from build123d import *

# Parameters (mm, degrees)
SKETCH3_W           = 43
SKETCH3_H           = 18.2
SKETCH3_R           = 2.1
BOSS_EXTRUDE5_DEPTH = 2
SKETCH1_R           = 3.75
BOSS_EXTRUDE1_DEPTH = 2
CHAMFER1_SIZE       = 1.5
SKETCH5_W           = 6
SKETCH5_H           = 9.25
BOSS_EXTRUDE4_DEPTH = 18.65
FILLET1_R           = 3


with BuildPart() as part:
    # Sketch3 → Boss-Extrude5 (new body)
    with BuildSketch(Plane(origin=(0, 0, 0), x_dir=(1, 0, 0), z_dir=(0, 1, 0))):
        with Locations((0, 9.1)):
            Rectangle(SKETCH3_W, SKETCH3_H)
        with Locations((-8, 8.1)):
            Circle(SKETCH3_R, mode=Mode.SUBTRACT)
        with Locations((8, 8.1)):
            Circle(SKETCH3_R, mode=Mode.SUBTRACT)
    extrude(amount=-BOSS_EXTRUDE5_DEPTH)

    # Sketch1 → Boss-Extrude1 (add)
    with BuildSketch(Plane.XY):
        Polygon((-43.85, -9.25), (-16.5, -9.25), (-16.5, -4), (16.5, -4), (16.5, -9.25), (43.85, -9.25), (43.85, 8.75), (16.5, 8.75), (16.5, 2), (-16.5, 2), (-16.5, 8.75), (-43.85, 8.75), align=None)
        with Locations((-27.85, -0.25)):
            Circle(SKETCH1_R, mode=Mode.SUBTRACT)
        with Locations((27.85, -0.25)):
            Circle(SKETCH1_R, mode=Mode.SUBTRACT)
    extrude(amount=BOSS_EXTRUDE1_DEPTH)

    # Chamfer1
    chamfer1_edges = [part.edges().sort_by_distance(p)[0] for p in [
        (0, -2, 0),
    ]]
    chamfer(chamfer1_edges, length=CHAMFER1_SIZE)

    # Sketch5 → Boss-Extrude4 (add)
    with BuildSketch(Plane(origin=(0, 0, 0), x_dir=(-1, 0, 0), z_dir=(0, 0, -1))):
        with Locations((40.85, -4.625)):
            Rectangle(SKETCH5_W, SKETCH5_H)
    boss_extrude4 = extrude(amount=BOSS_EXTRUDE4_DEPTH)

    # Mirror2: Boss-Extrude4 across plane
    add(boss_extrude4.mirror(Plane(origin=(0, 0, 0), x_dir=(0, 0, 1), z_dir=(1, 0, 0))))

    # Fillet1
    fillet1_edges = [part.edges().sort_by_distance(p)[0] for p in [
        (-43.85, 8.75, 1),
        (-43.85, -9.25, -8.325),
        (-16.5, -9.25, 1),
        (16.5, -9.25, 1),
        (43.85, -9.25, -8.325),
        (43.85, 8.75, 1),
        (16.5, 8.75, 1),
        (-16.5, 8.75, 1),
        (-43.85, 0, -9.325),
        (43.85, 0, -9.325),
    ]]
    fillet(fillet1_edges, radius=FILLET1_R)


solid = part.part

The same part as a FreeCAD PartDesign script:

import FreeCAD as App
import Part
import Sketcher
Q = App.Units.Quantity


def edges_at(feature, points):
    """Names of the edges that pass closest to the given points."""
    edges = feature.Shape.Edges
    near = lambda p: min(range(len(edges)), key=lambda i: edges[i].distToShape(Part.Vertex(*p))[0])
    return sorted({f"Edge{near(p) + 1}" for p in points})


def add_polygon(sketch, points):
    """Adds a closed chain of lines whose ends are joined by coincident constraints."""
    first, n = sketch.GeometryCount, len(points)
    for a, b in zip(points, points[1:] + points[:1]):
        sketch.addGeometry(Part.LineSegment(App.Vector(*a, 0), App.Vector(*b, 0)), False)
    for i in range(n):
        sketch.addConstraint(Sketcher.Constraint("Coincident", first + i, 2, first + (i + 1) % n, 1))

doc = App.newDocument("Part")
body = doc.addObject("PartDesign::Body", "Body")

sketch1 = body.newObject("Sketcher::SketchObject", "Sketch")
sketch1.AttachmentSupport = (doc.getObject("XZ_Plane"), [""])
sketch1.MapMode = "FlatFace"
add_polygon(sketch1, [(-21.5, -18.2), (-21.5, 0), (21.5, 0), (21.5, -18.2)])
sketch1.addGeometry(Part.Circle(App.Vector(-8, -8.1, 0), App.Vector(0, 0, 1), 2.1), False)
sketch1.addGeometry(Part.Circle(App.Vector(8, -8.1, 0), App.Vector(0, 0, 1), 2.1), False)
sketch1.addConstraint([
    Sketcher.Constraint("Vertical", 0),
    Sketcher.Constraint("Horizontal", 1),
    Sketcher.Constraint("Vertical", 2),
    Sketcher.Constraint("Horizontal", 3),
    Sketcher.Constraint("Equal", 4, 5),
    Sketcher.Constraint("Symmetric", 0, 2, 1, 2, -1, 1),
    Sketcher.Constraint("Symmetric", 4, 3, 5, 3, -2),
    Sketcher.Constraint("Diameter", 4, Q("4.2 mm")),
    Sketcher.Constraint("DistanceX", 1, 1, 1, 2, Q("43 mm")),
    Sketcher.Constraint("DistanceY", 0, 1, 0, 2, Q("18.2 mm")),
    Sketcher.Constraint("DistanceX", 4, 3, -1, 1, Q("8 mm")),
    Sketcher.Constraint("DistanceY", 4, 3, -1, 1, Q("8.1 mm")),
])
pad1 = body.newObject("PartDesign::Pad", "Pad")
pad1.Profile = sketch1
pad1.Length = 2

sketch2 = body.newObject("Sketcher::SketchObject", "Sketch001")
sketch2.AttachmentSupport = (doc.getObject("XY_Plane"), [""])
sketch2.MapMode = "FlatFace"
add_polygon(sketch2, [(-43.9, -9.2), (-16.5, -9.2), (-16.5, -4), (16.5, -4), (16.5, -9.2), (43.9, -9.2), (43.9, 8.8), (16.5, 8.8), (16.5, 2), (-16.5, 2), (-16.5, 8.8), (-43.9, 8.8)])
sketch2.addGeometry(Part.Circle(App.Vector(-27.9, -0.2, 0), App.Vector(0, 0, 1), 3.8), False)
sketch2.addGeometry(Part.Circle(App.Vector(27.9, -0.2, 0), App.Vector(0, 0, 1), 3.8), False)
sketch2.addConstraint([
    Sketcher.Constraint("Horizontal", 0),
    Sketcher.Constraint("Vertical", 1),
    Sketcher.Constraint("Horizontal", 2),
    Sketcher.Constraint("Vertical", 3),
    Sketcher.Constraint("Horizontal", 4),
    Sketcher.Constraint("Vertical", 5),
    Sketcher.Constraint("Horizontal", 6),
    Sketcher.Constraint("Vertical", 7),
    Sketcher.Constraint("Horizontal", 8),
    Sketcher.Constraint("Vertical", 9),
    Sketcher.Constraint("Horizontal", 10),
    Sketcher.Constraint("Vertical", 11),
    Sketcher.Constraint("Equal", 12, 13),
    Sketcher.Constraint("Symmetric", 12, 3, 13, 3, -2),
    Sketcher.Constraint("Symmetric", 0, 2, 3, 2, -2),
    Sketcher.Constraint("Symmetric", 6, 2, 9, 2, -2),
    Sketcher.Constraint("Vertical", 3, 2, 6, 2),
    Sketcher.Constraint("Equal", 0, 4),
    Sketcher.Constraint("Diameter", 12, Q("7.5 mm")),
    Sketcher.Constraint("DistanceX", 2, 1, 2, 2, Q("33 mm")),
    Sketcher.Constraint("DistanceY", 5, 1, 5, 2, Q("18 mm")),
    Sketcher.Constraint("DistanceY", 1, 2, -1, 1, Q("4 mm")),
    Sketcher.Constraint("DistanceY", -1, 1, 7, 2, Q("2 mm")),
    Sketcher.Constraint("DistanceY", 0, 2, 12, 3, Q("9 mm")),
    Sketcher.Constraint("DistanceX", 13, 3, 4, 2, Q("16 mm")),
    Sketcher.Constraint("DistanceX", 0, 1, 0, 2, Q("27.35 mm")),
    Sketcher.Constraint("DistanceY", 1, 1, 1, 2, Q("5.25 mm")),
])
pad2 = body.newObject("PartDesign::Pad", "Pad001")
pad2.Profile = sketch2
pad2.Length = 2
doc.recompute()

chamfer = body.newObject("PartDesign::Chamfer", "Chamfer")
chamfer.Base = (pad2, edges_at(pad2, [(0, -2, 0)]))
chamfer.Size = 1.5

sketch3 = body.newObject("Sketcher::SketchObject", "Sketch002")
sketch3.AttachmentSupport = (doc.getObject("XY_Plane"), [""])
sketch3.MapMode = "FlatFace"
add_polygon(sketch3, [(-38, 0), (-38, -9), (-44, -9), (-44, 0)])
sketch3.addConstraint([
    Sketcher.Constraint("Vertical", 0),
    Sketcher.Constraint("Horizontal", 1),
    Sketcher.Constraint("Vertical", 2),
    Sketcher.Constraint("Horizontal", 3),
    Sketcher.Constraint("PointOnObject", 2, 2, -1),
    Sketcher.Constraint("DistanceX", 1, 2, 1, 1, Q("6 mm")),
    Sketcher.Constraint("DistanceY", 0, 2, 0, 1, Q("9.25 mm")),
    Sketcher.Constraint("DistanceX", 0, 2, -1, 1, Q("37.85 mm")),
])
pad3 = body.newObject("PartDesign::Pad", "Pad002")
pad3.Profile = sketch3
pad3.Length = 18.65
pad3.Reversed = True
doc.recompute()

mirrored = body.newObject("PartDesign::Mirrored", "Mirrored")
mirrored.Originals = [pad3]
mirrored.MirrorPlane = (doc.getObject("YZ_Plane"), [""])
body.Tip = mirrored
doc.recompute()

fillet = body.newObject("PartDesign::Fillet", "Fillet")
fillet.Base = (mirrored, edges_at(mirrored, [
    (-43.85, 8.75, 1),
    (-43.85, -9.25, -8.325),
    (-16.5, -9.25, 1),
    (16.5, -9.25, 1),
    (43.85, -9.25, -8.325),
    (43.85, 8.75, 1),
    (16.5, 8.75, 1),
    (-16.5, 8.75, 1),
    (-43.85, 0, -9.325),
    (43.85, 0, -9.325),
]))
fillet.Radius = 3

doc.recompute()
